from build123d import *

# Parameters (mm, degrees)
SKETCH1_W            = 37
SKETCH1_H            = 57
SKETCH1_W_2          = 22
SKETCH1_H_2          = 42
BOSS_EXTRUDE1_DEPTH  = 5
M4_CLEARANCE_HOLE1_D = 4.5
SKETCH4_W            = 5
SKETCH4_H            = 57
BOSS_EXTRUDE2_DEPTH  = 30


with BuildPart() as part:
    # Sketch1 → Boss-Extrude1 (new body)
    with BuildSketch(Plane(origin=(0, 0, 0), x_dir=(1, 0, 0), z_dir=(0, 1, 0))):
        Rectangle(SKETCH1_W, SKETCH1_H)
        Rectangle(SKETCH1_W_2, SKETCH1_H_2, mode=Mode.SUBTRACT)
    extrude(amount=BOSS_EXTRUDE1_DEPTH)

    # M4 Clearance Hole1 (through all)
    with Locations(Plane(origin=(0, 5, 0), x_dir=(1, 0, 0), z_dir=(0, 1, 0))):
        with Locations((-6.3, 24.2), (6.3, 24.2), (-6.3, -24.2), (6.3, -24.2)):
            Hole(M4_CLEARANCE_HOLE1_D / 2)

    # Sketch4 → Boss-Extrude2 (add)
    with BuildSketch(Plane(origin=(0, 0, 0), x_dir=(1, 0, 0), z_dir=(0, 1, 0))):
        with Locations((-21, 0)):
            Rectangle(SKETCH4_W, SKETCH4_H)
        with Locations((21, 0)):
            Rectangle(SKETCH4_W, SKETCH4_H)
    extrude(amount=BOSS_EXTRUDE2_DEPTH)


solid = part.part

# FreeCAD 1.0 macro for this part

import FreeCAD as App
import Part
import Sketcher
from FreeCAD import Vector
Q = App.Units.Quantity

doc = App.newDocument("Part")
body = doc.addObject("PartDesign::Body", "Body")

# Sketch on XZ plane
sketch1 = doc.addObject("Sketcher::SketchObject", "Sketch")
body.addObject(sketch1)
sketch1.AttachmentSupport = (doc.XZ_Plane, [""])
sketch1.MapMode = "FlatFace"
sketch1.addGeometry(Part.LineSegment(Vector(-18, -28, 0), Vector(-18, 28, 0)), False)
sketch1.addGeometry(Part.LineSegment(Vector(-18, 28, 0), Vector(18, 28, 0)), False)
sketch1.addGeometry(Part.LineSegment(Vector(18, 28, 0), Vector(18, -28, 0)), False)
sketch1.addGeometry(Part.LineSegment(Vector(18, -28, 0), Vector(-18, -28, 0)), False)
sketch1.addGeometry(Part.LineSegment(Vector(11, 21, 0), Vector(-11, 21, 0)), False)
sketch1.addGeometry(Part.LineSegment(Vector(-11, 21, 0), Vector(-11, -21, 0)), False)
sketch1.addGeometry(Part.LineSegment(Vector(-11, -21, 0), Vector(11, -21, 0)), False)
sketch1.addGeometry(Part.LineSegment(Vector(11, -21, 0), Vector(11, 21, 0)), False)
sketch1.addConstraint(Sketcher.Constraint("Coincident", 0, 2, 1, 1))
sketch1.addConstraint(Sketcher.Constraint("Coincident", 1, 2, 2, 1))
sketch1.addConstraint(Sketcher.Constraint("Coincident", 2, 2, 3, 1))
sketch1.addConstraint(Sketcher.Constraint("Coincident", 3, 2, 0, 1))
sketch1.addConstraint(Sketcher.Constraint("Coincident", 4, 2, 5, 1))
sketch1.addConstraint(Sketcher.Constraint("Coincident", 5, 2, 6, 1))
sketch1.addConstraint(Sketcher.Constraint("Coincident", 6, 2, 7, 1))
sketch1.addConstraint(Sketcher.Constraint("Coincident", 7, 2, 4, 1))
sketch1.addConstraint(Sketcher.Constraint("Vertical", 0))
sketch1.addConstraint(Sketcher.Constraint("Horizontal", 1))
sketch1.addConstraint(Sketcher.Constraint("Vertical", 2))
sketch1.addConstraint(Sketcher.Constraint("Horizontal", 3))
sketch1.addConstraint(Sketcher.Constraint("Horizontal", 4))
sketch1.addConstraint(Sketcher.Constraint("Vertical", 5))
sketch1.addConstraint(Sketcher.Constraint("Horizontal", 6))
sketch1.addConstraint(Sketcher.Constraint("Vertical", 7))
sketch1.addConstraint(Sketcher.Constraint("Symmetric", 0, 2, 2, 2, -1, 1))
sketch1.addConstraint(Sketcher.Constraint("Symmetric", 4, 2, 6, 2, -1, 1))
sketch1.addConstraint(Sketcher.Constraint("DistanceX", 1, 1, 1, 2, Q("37 mm")))
sketch1.addConstraint(Sketcher.Constraint("DistanceX", 4, 2, 4, 1, Q("22 mm")))
sketch1.addConstraint(Sketcher.Constraint("DistanceY", 0, 1, 0, 2, Q("57 mm")))
sketch1.addConstraint(Sketcher.Constraint("DistanceY", 5, 2, 5, 1, Q("42 mm")))
pad1 = doc.addObject("PartDesign::Pad", "Pad")
body.addObject(pad1)
pad1.Profile = sketch1
pad1.Length = 5
pad1.Reversed = True

# Sketch on XZ plane
sketch2 = doc.addObject("Sketcher::SketchObject", "Sketch001")
body.addObject(sketch2)
sketch2.AttachmentSupport = (doc.XZ_Plane, [""])
sketch2.MapMode = "FlatFace"
sketch2.AttachmentOffset = App.Placement(Vector(0, 0, -5), App.Rotation())
sketch2.addGeometry(Part.Circle(Vector(-6.3, -24.2, 0), Vector(0, 0, 1), 2.2), False)
sketch2.addGeometry(Part.Circle(Vector(6.3, -24.2, 0), Vector(0, 0, 1), 2.2), False)
sketch2.addGeometry(Part.Circle(Vector(-6.3, 24.2, 0), Vector(0, 0, 1), 2.2), False)
sketch2.addGeometry(Part.Circle(Vector(6.3, 24.2, 0), Vector(0, 0, 1), 2.2), False)
sketch2.addConstraint(Sketcher.Constraint("Equal", 0, 1))
sketch2.addConstraint(Sketcher.Constraint("Equal", 1, 2))
sketch2.addConstraint(Sketcher.Constraint("Equal", 2, 3))
sketch2.addConstraint(Sketcher.Constraint("Symmetric", 1, 3, 2, 3, -1, 1))
sketch2.addConstraint(Sketcher.Constraint("Symmetric", 0, 3, 3, 3, -1, 1))
sketch2.addConstraint(Sketcher.Constraint("Symmetric", 0, 3, 1, 3, -2))
sketch2.addConstraint(Sketcher.Constraint("Diameter", 0, Q("4.5 mm")))
sketch2.addConstraint(Sketcher.Constraint("DistanceX", 0, 3, -1, 1, Q("6.3 mm")))
sketch2.addConstraint(Sketcher.Constraint("DistanceY", 0, 3, -1, 1, Q("24.2 mm")))
doc.recompute()
hole = doc.addObject("PartDesign::Hole", "Hole")
body.addObject(hole)
hole.Profile = sketch2
hole.ThreadType = "None"
hole.Diameter = 4.5
hole.DepthType = "ThroughAll"
hole.Reversed = True

# Sketch on XZ plane
sketch3 = doc.addObject("Sketcher::SketchObject", "Sketch002")
body.addObject(sketch3)
sketch3.AttachmentSupport = (doc.XZ_Plane, [""])
sketch3.MapMode = "FlatFace"
sketch3.addGeometry(Part.LineSegment(Vector(-24, -28, 0), Vector(-24, 28, 0)), False)
sketch3.addGeometry(Part.LineSegment(Vector(-24, 28, 0), Vector(-18, 28, 0)), False)
sketch3.addGeometry(Part.LineSegment(Vector(-18, 28, 0), Vector(-18, -28, 0)), False)
sketch3.addGeometry(Part.LineSegment(Vector(-18, -28, 0), Vector(-24, -28, 0)), False)
sketch3.addGeometry(Part.LineSegment(Vector(18, -28, 0), Vector(18, 28, 0)), False)
sketch3.addGeometry(Part.LineSegment(Vector(18, 28, 0), Vector(24, 28, 0)), False)
sketch3.addGeometry(Part.LineSegment(Vector(24, 28, 0), Vector(24, -28, 0)), False)
sketch3.addGeometry(Part.LineSegment(Vector(24, -28, 0), Vector(18, -28, 0)), False)
sketch3.addConstraint(Sketcher.Constraint("Coincident", 0, 2, 1, 1))
sketch3.addConstraint(Sketcher.Constraint("Coincident", 1, 2, 2, 1))
sketch3.addConstraint(Sketcher.Constraint("Coincident", 2, 2, 3, 1))
sketch3.addConstraint(Sketcher.Constraint("Coincident", 3, 2, 0, 1))
sketch3.addConstraint(Sketcher.Constraint("Coincident", 4, 2, 5, 1))
sketch3.addConstraint(Sketcher.Constraint("Coincident", 5, 2, 6, 1))
sketch3.addConstraint(Sketcher.Constraint("Coincident", 6, 2, 7, 1))
sketch3.addConstraint(Sketcher.Constraint("Coincident", 7, 2, 4, 1))
sketch3.addConstraint(Sketcher.Constraint("Vertical", 0))
sketch3.addConstraint(Sketcher.Constraint("Horizontal", 1))
sketch3.addConstraint(Sketcher.Constraint("Vertical", 2))
sketch3.addConstraint(Sketcher.Constraint("Horizontal", 3))
sketch3.addConstraint(Sketcher.Constraint("Vertical", 4))
sketch3.addConstraint(Sketcher.Constraint("Horizontal", 5))
sketch3.addConstraint(Sketcher.Constraint("Vertical", 6))
sketch3.addConstraint(Sketcher.Constraint("Horizontal", 7))
sketch3.addConstraint(Sketcher.Constraint("Symmetric", 2, 2, 4, 2, -1, 1))
sketch3.addConstraint(Sketcher.Constraint("Symmetric", 0, 2, 6, 2, -1, 1))
sketch3.addConstraint(Sketcher.Constraint("Horizontal", 1, 2, 4, 2))
sketch3.addConstraint(Sketcher.Constraint("DistanceX", 1, 1, 1, 2, Q("5 mm")))
sketch3.addConstraint(Sketcher.Constraint("DistanceY", 0, 1, 0, 2, Q("57 mm")))
sketch3.addConstraint(Sketcher.Constraint("DistanceX", 1, 2, 4, 2, Q("37 mm")))
pad2 = doc.addObject("PartDesign::Pad", "Pad001")
body.addObject(pad2)
pad2.Profile = sketch3
pad2.Length = 30
pad2.Reversed = True

doc.recompute()
